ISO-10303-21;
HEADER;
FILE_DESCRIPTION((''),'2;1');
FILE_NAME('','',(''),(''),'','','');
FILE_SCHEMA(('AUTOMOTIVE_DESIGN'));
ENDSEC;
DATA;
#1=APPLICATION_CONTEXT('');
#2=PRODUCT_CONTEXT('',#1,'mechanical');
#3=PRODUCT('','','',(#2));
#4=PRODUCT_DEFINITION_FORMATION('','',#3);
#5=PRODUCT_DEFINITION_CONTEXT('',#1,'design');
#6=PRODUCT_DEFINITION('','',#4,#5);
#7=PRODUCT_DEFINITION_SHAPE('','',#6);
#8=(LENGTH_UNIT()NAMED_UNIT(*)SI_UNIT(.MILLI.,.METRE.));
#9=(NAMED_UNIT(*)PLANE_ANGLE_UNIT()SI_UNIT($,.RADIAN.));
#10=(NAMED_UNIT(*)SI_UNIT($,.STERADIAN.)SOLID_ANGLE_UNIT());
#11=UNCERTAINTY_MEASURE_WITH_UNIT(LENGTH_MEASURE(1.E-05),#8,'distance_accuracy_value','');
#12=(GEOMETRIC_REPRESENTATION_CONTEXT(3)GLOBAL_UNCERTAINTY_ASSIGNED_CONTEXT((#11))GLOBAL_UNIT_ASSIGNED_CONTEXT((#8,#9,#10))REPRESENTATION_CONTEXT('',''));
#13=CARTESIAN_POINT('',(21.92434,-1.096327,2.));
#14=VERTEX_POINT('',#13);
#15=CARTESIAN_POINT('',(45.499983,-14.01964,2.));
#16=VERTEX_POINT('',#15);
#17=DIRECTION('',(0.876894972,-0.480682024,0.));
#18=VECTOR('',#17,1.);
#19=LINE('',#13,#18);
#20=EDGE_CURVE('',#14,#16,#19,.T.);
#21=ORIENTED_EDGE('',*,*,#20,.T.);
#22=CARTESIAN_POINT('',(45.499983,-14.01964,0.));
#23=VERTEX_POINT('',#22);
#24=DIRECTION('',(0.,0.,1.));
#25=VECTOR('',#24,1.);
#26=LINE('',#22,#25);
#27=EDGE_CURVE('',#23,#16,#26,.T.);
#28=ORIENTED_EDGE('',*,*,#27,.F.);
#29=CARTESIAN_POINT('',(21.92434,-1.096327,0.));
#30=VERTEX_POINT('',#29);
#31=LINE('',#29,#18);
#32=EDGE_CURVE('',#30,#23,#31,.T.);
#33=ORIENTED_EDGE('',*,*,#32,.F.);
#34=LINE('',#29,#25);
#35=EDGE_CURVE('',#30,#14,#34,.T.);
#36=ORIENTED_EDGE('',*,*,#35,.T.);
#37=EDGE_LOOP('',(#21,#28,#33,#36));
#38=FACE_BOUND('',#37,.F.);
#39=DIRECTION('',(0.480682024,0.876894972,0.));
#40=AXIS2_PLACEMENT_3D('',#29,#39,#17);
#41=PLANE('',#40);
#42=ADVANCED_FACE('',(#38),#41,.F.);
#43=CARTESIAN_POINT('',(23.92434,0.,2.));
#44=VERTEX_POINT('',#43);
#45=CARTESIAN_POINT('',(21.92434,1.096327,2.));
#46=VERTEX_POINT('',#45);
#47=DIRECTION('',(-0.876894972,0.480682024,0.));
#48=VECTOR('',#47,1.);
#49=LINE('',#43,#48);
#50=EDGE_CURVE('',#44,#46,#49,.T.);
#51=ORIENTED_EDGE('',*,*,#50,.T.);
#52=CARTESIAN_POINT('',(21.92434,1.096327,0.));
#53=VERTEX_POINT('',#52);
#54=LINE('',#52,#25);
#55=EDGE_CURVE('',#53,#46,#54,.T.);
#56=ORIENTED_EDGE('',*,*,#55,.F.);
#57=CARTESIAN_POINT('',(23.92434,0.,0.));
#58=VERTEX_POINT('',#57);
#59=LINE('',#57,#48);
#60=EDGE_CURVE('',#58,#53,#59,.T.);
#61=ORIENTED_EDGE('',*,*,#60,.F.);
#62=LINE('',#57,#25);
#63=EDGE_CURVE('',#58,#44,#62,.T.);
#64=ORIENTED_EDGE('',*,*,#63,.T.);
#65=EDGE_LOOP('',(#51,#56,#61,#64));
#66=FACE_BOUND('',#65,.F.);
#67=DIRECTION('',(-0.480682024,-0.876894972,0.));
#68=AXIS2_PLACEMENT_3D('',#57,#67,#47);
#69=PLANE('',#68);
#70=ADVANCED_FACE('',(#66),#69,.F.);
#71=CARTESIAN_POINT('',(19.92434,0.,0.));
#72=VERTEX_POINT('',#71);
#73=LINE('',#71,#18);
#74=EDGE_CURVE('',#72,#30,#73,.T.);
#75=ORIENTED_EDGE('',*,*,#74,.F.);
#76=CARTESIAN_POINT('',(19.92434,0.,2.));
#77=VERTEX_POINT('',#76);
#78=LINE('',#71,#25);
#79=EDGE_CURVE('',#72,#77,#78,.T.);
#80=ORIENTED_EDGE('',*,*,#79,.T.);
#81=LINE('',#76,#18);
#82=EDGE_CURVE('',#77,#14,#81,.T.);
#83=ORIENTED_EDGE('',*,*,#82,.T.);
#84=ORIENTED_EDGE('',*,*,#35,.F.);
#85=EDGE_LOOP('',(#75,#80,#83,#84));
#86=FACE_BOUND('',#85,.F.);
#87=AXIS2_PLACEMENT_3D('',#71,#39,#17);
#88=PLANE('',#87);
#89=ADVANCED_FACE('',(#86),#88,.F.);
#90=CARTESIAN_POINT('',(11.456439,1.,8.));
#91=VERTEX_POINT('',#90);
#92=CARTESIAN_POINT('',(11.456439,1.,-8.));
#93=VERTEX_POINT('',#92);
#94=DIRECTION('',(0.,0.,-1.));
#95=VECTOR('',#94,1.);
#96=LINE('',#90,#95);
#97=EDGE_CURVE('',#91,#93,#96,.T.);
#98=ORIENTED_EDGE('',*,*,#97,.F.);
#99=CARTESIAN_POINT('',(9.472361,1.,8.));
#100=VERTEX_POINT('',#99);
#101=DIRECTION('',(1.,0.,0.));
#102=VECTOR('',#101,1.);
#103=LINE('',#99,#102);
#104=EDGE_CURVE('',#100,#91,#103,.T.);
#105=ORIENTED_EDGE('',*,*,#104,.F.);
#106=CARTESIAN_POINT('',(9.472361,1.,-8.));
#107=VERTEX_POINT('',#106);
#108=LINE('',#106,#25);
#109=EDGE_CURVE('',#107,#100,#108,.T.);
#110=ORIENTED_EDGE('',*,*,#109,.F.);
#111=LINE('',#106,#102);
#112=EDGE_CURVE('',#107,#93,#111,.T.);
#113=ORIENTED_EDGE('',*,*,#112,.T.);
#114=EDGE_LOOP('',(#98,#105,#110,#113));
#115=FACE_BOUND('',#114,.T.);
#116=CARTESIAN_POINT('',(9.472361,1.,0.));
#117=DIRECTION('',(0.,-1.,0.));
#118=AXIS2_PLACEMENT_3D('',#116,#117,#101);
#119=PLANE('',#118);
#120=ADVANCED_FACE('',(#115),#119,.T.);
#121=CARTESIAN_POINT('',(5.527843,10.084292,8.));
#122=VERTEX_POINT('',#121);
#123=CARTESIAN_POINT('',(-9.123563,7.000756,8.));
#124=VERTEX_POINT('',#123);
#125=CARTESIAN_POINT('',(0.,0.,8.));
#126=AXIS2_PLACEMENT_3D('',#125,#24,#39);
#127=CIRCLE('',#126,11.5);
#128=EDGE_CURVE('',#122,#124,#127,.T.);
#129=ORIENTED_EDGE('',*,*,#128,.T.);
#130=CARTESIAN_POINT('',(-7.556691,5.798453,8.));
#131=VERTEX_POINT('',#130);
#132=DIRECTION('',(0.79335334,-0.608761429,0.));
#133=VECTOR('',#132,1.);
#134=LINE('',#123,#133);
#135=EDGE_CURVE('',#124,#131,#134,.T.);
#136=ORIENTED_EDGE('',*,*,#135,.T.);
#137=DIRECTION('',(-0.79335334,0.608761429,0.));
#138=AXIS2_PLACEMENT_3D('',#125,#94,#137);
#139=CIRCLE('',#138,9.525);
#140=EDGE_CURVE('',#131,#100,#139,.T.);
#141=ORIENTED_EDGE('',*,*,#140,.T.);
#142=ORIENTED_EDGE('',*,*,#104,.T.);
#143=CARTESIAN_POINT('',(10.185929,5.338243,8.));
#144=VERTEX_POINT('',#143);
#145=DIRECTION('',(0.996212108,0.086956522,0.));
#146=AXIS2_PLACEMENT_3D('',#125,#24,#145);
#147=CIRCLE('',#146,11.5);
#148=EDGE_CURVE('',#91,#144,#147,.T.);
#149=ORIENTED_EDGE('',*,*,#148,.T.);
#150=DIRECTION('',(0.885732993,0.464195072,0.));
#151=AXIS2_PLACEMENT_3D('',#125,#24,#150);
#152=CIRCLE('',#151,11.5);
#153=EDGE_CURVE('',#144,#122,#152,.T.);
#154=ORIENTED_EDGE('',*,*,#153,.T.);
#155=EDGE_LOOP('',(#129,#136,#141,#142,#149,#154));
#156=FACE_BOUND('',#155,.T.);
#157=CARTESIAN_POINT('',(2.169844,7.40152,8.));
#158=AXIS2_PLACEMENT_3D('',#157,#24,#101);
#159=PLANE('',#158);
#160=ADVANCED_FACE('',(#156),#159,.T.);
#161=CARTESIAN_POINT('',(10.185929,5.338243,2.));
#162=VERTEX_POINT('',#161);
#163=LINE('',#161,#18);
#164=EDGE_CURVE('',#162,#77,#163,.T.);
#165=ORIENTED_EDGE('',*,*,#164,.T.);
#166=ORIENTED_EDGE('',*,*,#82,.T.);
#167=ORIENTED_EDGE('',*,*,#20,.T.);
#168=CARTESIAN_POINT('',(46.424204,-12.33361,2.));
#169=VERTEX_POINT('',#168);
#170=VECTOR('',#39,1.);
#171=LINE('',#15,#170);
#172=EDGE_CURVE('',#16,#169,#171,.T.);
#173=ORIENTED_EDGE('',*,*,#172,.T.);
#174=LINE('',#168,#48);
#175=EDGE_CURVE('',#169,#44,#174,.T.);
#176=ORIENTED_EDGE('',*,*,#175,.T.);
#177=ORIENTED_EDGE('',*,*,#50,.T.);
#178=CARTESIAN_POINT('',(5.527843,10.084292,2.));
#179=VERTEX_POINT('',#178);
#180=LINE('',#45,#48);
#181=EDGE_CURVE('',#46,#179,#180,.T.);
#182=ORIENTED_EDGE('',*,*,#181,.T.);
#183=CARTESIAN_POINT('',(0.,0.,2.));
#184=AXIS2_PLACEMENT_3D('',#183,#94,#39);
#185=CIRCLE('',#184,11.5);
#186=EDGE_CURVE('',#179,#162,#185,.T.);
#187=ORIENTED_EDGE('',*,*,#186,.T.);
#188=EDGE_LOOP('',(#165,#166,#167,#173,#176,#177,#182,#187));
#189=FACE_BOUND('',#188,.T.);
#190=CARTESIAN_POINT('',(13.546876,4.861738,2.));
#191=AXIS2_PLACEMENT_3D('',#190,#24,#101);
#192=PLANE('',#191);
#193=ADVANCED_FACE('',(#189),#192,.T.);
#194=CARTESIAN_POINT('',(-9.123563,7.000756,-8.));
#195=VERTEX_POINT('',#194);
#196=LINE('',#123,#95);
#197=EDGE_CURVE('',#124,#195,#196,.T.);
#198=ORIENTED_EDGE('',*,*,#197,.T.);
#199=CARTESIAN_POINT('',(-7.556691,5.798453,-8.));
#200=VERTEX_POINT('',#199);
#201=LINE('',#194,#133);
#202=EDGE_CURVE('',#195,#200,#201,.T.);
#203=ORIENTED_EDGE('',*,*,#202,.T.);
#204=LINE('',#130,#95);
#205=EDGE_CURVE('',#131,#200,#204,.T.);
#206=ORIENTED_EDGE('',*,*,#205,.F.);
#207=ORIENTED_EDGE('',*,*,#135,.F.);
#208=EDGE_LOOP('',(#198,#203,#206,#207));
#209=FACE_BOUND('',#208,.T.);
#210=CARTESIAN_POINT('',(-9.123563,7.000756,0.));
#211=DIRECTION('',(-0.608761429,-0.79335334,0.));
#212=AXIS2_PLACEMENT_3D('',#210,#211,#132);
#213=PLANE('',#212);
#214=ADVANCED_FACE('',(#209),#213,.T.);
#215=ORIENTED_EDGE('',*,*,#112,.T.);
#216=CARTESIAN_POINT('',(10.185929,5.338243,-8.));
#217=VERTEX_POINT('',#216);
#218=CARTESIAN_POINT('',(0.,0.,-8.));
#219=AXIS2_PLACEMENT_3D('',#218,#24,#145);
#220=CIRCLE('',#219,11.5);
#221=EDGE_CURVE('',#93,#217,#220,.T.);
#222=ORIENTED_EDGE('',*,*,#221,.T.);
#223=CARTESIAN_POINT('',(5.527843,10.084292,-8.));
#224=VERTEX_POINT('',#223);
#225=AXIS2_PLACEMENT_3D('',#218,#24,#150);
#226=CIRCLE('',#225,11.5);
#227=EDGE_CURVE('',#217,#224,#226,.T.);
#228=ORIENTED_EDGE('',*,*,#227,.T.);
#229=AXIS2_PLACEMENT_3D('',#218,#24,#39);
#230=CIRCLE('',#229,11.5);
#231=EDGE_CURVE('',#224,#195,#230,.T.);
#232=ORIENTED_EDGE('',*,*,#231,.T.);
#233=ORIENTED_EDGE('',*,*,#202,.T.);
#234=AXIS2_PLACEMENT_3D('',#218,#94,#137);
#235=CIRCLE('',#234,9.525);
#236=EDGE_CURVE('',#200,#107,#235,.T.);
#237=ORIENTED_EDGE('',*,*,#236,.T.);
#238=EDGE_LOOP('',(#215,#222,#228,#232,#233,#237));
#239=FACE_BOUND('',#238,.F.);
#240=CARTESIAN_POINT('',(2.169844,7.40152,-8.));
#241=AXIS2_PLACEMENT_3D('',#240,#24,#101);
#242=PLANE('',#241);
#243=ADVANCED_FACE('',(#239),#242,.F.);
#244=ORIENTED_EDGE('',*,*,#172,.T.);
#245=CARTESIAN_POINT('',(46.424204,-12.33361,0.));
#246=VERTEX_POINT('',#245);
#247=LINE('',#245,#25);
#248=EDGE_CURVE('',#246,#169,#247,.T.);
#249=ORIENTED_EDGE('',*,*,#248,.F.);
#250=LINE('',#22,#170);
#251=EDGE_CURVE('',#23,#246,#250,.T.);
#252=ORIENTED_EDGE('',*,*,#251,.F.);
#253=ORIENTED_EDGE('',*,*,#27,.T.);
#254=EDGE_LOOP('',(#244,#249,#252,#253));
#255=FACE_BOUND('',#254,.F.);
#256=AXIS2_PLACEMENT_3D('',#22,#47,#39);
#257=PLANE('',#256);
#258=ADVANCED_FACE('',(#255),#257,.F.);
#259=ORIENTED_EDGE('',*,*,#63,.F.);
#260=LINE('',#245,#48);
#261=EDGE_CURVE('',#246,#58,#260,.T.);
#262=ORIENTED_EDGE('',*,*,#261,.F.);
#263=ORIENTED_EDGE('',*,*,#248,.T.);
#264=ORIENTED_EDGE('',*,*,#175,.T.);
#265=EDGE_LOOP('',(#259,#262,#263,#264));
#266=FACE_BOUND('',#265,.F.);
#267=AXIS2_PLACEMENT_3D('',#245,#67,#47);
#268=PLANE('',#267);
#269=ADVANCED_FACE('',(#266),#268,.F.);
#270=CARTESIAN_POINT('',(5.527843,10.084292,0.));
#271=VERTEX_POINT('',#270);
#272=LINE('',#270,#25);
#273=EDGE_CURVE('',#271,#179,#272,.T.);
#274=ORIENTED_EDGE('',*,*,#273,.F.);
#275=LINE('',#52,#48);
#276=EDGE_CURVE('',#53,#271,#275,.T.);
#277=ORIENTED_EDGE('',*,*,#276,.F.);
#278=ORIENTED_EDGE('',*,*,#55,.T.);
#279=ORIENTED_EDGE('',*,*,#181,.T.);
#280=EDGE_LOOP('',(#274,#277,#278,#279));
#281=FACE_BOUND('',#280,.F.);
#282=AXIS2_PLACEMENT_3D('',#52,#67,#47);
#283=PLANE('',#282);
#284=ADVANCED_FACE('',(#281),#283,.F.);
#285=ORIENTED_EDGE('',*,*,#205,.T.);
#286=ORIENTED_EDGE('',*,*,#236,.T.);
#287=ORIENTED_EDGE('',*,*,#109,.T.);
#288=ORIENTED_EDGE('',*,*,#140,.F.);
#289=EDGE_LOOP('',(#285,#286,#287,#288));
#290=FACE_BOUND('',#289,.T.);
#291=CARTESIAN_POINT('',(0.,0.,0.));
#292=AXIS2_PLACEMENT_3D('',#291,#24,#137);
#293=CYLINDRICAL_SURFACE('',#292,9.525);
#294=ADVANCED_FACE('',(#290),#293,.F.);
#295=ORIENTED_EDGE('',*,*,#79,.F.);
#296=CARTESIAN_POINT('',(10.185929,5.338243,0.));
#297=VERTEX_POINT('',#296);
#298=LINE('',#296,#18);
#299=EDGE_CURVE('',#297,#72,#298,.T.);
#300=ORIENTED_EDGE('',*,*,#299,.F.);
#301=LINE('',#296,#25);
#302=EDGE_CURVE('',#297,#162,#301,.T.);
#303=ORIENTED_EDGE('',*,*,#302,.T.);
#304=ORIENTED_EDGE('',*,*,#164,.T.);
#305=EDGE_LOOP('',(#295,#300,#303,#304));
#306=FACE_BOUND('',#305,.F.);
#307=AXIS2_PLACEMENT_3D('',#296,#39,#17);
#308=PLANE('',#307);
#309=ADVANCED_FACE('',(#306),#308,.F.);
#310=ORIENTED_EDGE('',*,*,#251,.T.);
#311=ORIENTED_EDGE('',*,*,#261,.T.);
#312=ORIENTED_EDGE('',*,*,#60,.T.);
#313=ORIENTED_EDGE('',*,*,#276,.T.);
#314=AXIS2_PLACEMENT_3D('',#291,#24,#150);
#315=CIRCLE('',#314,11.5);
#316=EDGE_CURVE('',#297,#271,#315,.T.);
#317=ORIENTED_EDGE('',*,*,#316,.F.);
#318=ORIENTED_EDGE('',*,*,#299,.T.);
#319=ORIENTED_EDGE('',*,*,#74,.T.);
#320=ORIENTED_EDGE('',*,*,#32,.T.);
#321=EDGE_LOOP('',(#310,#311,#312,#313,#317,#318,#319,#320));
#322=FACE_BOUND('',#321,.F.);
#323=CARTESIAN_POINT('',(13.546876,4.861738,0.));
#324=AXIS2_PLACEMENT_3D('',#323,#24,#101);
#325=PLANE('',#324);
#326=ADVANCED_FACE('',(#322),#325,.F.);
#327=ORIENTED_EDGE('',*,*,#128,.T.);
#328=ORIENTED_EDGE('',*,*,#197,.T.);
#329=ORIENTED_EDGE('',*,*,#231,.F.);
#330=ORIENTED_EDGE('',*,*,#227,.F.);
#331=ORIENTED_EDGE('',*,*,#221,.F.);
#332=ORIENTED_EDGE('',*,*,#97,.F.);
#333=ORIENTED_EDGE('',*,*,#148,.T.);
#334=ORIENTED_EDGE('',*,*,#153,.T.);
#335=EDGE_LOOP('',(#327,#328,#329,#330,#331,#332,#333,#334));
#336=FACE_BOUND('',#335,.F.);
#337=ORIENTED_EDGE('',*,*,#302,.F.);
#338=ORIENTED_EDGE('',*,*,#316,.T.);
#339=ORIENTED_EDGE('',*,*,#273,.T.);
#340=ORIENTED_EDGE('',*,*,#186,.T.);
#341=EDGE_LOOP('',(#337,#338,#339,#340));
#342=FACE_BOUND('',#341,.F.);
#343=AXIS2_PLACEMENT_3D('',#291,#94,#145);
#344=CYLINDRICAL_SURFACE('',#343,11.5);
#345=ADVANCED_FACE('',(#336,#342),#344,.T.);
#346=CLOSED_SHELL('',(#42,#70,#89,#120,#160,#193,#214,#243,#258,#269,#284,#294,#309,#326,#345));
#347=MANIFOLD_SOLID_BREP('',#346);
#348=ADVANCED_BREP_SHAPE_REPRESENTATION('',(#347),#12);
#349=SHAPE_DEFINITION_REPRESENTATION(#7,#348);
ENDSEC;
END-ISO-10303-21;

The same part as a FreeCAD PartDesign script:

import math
import FreeCAD as App
import Part
import Sketcher
from FreeCAD import Vector
Q = App.Units.Quantity

doc = App.newDocument("Part")
params = doc.addObject("Spreadsheet::Sheet", "Params")
for row, (alias, value) in enumerate([
    ("sketch1_radius", "11.5 mm"),
    ("pad1_length", "16 mm"),
    ("sketch2_radius", "11.5 mm"),
    ("pad2_length", "2 mm"),
], start=1):
    params.set(f"A{row}", alias)
    params.set(f"B{row}", "=" + value)
    params.setAlias(f"B{row}", alias)

body = doc.addObject("PartDesign::Body", "Body")

sketch1 = body.newObject("Sketcher::SketchObject", "Sketch")
sketch1.AttachmentSupport = (doc.getObject("XY_Plane"), [""])
sketch1.MapMode = "FlatFace"
sketch1.addGeometry([
    Part.ArcOfCircle(Part.Circle(Vector(0, 0, 0), Vector(0, 0, 1), 9.5), math.radians(6), math.radians(143)),
    Part.LineSegment(Vector(9.5, 1, 0), Vector(11.5, 1, 0)),
    Part.ArcOfCircle(Part.Circle(Vector(0, 0, 0), Vector(0, 0, 1), 11.5), math.radians(5), math.radians(28)),
    Part.ArcOfCircle(Part.Circle(Vector(0, 0, 0), Vector(0, 0, 1), 11.5), math.radians(28), math.radians(61)),
    Part.ArcOfCircle(Part.Circle(Vector(0, 0, 0), Vector(0, 0, 1), 11.5), math.radians(61), math.radians(142)),
    Part.LineSegment(Vector(-9.1, 7, 0), Vector(-7.6, 5.8, 0)),
], False)
sketch1.addConstraint([
    Sketcher.Constraint("Coincident", 0, 1, 1, 1),
    Sketcher.Constraint("Coincident", 1, 2, 2, 1),
    Sketcher.Constraint("Tangent", 2, 2, 3, 1),
    Sketcher.Constraint("Tangent", 3, 2, 4, 1),
    Sketcher.Constraint("Coincident", 4, 2, 5, 1),
    Sketcher.Constraint("Coincident", 5, 2, 0, 2),
    Sketcher.Constraint("Horizontal", 1),
    Sketcher.Constraint("Coincident", 0, 3, -1, 1),
    Sketcher.Constraint("Coincident", 2, 3, -1, 1),
    Sketcher.Constraint("Coincident", 4, 3, -1, 1),
    Sketcher.Constraint("Radius", 2, Q("11.5 mm")),
    Sketcher.Constraint("DistanceY", -1, 1, 0, 1, Q("1 mm")),
    Sketcher.Constraint("Angle", 5, Q("-37.5 deg")),
    Sketcher.Constraint("Radius", 0, Q("9.525 mm")),
    Sketcher.Constraint("DistanceX", -1, 1, 2, 2, Q("10.185929 mm")),
    Sketcher.Constraint("DistanceX", 5, 2, -1, 1, Q("7.556691 mm")),
    Sketcher.Constraint("DistanceY", 2, 2, 3, 2, Q("4.746049 mm")),
])
sketch1.setExpression("Constraints[10]", "Params.sketch1_radius")
pad1 = body.newObject("PartDesign::Pad", "Pad")
pad1.Profile = sketch1
pad1.setExpression("Length", "Params.pad1_length")
pad1.Midplane = True

sketch2 = body.newObject("Sketcher::SketchObject", "Sketch001")
sketch2.AttachmentSupport = (doc.getObject("XY_Plane"), [""])
sketch2.MapMode = "FlatFace"
sketch2.addGeometry([
    Part.ArcOfCircle(Part.Circle(Vector(0, 0, 0), Vector(0, 0, 1), 11.5), math.radians(28), math.radians(61)),
    Part.LineSegment(Vector(10.2, 5.3, 0), Vector(19.9, 0, 0)),
    Part.LineSegment(Vector(19.9, 0, 0), Vector(21.9, -1.1, 0)),
    Part.LineSegment(Vector(21.9, -1.1, 0), Vector(45.5, -14, 0)),
    Part.LineSegment(Vector(45.5, -14, 0), Vector(46.4, -12.3, 0)),
    Part.LineSegment(Vector(46.4, -12.3, 0), Vector(23.9, 0, 0)),
    Part.LineSegment(Vector(23.9, 0, 0), Vector(21.9, 1.1, 0)),
    Part.LineSegment(Vector(21.9, 1.1, 0), Vector(5.5, 10.1, 0)),
], False)
sketch2.addConstraint([
    Sketcher.Constraint("Coincident", 0, 1, 1, 1),
    Sketcher.Constraint("Coincident", 1, 2, 2, 1),
    Sketcher.Constraint("Coincident", 2, 2, 3, 1),
    Sketcher.Constraint("Coincident", 3, 2, 4, 1),
    Sketcher.Constraint("Coincident", 4, 2, 5, 1),
    Sketcher.Constraint("Coincident", 5, 2, 6, 1),
    Sketcher.Constraint("Coincident", 6, 2, 7, 1),
    Sketcher.Constraint("Tangent", 7, 2, 0, 2),
    Sketcher.Constraint("Coincident", 0, 3, -1, 1),
    Sketcher.Constraint("Symmetric", 2, 2, 6, 2, -1),
    Sketcher.Constraint("PointOnObject", 1, 2, -1),
    Sketcher.Constraint("PointOnObject", 5, 2, -1),
    Sketcher.Constraint("Parallel", 1, 2),
    Sketcher.Constraint("Parallel", 2, 3),
    Sketcher.Constraint("Perpendicular", 3, 4),
    Sketcher.Constraint("Perpendicular", 4, 5),
    Sketcher.Constraint("Parallel", 5, 6),
    Sketcher.Constraint("Parallel", 6, 7),
    Sketcher.Constraint("Radius", 0, Q("11.5 mm")),
    Sketcher.Constraint("DistanceX", 1, 2, 2, 2, Q("2 mm")),
    Sketcher.Constraint("Distance", 1, Q("11.105561 mm")),
    Sketcher.Constraint("DistanceY", 3, 2, -1, 1, Q("14.01964 mm")),
])
sketch2.setExpression("Constraints[18]", "Params.sketch2_radius")
pad2 = body.newObject("PartDesign::Pad", "Pad001")
pad2.Profile = sketch2
pad2.setExpression("Length", "Params.pad2_length")

doc.recompute()
